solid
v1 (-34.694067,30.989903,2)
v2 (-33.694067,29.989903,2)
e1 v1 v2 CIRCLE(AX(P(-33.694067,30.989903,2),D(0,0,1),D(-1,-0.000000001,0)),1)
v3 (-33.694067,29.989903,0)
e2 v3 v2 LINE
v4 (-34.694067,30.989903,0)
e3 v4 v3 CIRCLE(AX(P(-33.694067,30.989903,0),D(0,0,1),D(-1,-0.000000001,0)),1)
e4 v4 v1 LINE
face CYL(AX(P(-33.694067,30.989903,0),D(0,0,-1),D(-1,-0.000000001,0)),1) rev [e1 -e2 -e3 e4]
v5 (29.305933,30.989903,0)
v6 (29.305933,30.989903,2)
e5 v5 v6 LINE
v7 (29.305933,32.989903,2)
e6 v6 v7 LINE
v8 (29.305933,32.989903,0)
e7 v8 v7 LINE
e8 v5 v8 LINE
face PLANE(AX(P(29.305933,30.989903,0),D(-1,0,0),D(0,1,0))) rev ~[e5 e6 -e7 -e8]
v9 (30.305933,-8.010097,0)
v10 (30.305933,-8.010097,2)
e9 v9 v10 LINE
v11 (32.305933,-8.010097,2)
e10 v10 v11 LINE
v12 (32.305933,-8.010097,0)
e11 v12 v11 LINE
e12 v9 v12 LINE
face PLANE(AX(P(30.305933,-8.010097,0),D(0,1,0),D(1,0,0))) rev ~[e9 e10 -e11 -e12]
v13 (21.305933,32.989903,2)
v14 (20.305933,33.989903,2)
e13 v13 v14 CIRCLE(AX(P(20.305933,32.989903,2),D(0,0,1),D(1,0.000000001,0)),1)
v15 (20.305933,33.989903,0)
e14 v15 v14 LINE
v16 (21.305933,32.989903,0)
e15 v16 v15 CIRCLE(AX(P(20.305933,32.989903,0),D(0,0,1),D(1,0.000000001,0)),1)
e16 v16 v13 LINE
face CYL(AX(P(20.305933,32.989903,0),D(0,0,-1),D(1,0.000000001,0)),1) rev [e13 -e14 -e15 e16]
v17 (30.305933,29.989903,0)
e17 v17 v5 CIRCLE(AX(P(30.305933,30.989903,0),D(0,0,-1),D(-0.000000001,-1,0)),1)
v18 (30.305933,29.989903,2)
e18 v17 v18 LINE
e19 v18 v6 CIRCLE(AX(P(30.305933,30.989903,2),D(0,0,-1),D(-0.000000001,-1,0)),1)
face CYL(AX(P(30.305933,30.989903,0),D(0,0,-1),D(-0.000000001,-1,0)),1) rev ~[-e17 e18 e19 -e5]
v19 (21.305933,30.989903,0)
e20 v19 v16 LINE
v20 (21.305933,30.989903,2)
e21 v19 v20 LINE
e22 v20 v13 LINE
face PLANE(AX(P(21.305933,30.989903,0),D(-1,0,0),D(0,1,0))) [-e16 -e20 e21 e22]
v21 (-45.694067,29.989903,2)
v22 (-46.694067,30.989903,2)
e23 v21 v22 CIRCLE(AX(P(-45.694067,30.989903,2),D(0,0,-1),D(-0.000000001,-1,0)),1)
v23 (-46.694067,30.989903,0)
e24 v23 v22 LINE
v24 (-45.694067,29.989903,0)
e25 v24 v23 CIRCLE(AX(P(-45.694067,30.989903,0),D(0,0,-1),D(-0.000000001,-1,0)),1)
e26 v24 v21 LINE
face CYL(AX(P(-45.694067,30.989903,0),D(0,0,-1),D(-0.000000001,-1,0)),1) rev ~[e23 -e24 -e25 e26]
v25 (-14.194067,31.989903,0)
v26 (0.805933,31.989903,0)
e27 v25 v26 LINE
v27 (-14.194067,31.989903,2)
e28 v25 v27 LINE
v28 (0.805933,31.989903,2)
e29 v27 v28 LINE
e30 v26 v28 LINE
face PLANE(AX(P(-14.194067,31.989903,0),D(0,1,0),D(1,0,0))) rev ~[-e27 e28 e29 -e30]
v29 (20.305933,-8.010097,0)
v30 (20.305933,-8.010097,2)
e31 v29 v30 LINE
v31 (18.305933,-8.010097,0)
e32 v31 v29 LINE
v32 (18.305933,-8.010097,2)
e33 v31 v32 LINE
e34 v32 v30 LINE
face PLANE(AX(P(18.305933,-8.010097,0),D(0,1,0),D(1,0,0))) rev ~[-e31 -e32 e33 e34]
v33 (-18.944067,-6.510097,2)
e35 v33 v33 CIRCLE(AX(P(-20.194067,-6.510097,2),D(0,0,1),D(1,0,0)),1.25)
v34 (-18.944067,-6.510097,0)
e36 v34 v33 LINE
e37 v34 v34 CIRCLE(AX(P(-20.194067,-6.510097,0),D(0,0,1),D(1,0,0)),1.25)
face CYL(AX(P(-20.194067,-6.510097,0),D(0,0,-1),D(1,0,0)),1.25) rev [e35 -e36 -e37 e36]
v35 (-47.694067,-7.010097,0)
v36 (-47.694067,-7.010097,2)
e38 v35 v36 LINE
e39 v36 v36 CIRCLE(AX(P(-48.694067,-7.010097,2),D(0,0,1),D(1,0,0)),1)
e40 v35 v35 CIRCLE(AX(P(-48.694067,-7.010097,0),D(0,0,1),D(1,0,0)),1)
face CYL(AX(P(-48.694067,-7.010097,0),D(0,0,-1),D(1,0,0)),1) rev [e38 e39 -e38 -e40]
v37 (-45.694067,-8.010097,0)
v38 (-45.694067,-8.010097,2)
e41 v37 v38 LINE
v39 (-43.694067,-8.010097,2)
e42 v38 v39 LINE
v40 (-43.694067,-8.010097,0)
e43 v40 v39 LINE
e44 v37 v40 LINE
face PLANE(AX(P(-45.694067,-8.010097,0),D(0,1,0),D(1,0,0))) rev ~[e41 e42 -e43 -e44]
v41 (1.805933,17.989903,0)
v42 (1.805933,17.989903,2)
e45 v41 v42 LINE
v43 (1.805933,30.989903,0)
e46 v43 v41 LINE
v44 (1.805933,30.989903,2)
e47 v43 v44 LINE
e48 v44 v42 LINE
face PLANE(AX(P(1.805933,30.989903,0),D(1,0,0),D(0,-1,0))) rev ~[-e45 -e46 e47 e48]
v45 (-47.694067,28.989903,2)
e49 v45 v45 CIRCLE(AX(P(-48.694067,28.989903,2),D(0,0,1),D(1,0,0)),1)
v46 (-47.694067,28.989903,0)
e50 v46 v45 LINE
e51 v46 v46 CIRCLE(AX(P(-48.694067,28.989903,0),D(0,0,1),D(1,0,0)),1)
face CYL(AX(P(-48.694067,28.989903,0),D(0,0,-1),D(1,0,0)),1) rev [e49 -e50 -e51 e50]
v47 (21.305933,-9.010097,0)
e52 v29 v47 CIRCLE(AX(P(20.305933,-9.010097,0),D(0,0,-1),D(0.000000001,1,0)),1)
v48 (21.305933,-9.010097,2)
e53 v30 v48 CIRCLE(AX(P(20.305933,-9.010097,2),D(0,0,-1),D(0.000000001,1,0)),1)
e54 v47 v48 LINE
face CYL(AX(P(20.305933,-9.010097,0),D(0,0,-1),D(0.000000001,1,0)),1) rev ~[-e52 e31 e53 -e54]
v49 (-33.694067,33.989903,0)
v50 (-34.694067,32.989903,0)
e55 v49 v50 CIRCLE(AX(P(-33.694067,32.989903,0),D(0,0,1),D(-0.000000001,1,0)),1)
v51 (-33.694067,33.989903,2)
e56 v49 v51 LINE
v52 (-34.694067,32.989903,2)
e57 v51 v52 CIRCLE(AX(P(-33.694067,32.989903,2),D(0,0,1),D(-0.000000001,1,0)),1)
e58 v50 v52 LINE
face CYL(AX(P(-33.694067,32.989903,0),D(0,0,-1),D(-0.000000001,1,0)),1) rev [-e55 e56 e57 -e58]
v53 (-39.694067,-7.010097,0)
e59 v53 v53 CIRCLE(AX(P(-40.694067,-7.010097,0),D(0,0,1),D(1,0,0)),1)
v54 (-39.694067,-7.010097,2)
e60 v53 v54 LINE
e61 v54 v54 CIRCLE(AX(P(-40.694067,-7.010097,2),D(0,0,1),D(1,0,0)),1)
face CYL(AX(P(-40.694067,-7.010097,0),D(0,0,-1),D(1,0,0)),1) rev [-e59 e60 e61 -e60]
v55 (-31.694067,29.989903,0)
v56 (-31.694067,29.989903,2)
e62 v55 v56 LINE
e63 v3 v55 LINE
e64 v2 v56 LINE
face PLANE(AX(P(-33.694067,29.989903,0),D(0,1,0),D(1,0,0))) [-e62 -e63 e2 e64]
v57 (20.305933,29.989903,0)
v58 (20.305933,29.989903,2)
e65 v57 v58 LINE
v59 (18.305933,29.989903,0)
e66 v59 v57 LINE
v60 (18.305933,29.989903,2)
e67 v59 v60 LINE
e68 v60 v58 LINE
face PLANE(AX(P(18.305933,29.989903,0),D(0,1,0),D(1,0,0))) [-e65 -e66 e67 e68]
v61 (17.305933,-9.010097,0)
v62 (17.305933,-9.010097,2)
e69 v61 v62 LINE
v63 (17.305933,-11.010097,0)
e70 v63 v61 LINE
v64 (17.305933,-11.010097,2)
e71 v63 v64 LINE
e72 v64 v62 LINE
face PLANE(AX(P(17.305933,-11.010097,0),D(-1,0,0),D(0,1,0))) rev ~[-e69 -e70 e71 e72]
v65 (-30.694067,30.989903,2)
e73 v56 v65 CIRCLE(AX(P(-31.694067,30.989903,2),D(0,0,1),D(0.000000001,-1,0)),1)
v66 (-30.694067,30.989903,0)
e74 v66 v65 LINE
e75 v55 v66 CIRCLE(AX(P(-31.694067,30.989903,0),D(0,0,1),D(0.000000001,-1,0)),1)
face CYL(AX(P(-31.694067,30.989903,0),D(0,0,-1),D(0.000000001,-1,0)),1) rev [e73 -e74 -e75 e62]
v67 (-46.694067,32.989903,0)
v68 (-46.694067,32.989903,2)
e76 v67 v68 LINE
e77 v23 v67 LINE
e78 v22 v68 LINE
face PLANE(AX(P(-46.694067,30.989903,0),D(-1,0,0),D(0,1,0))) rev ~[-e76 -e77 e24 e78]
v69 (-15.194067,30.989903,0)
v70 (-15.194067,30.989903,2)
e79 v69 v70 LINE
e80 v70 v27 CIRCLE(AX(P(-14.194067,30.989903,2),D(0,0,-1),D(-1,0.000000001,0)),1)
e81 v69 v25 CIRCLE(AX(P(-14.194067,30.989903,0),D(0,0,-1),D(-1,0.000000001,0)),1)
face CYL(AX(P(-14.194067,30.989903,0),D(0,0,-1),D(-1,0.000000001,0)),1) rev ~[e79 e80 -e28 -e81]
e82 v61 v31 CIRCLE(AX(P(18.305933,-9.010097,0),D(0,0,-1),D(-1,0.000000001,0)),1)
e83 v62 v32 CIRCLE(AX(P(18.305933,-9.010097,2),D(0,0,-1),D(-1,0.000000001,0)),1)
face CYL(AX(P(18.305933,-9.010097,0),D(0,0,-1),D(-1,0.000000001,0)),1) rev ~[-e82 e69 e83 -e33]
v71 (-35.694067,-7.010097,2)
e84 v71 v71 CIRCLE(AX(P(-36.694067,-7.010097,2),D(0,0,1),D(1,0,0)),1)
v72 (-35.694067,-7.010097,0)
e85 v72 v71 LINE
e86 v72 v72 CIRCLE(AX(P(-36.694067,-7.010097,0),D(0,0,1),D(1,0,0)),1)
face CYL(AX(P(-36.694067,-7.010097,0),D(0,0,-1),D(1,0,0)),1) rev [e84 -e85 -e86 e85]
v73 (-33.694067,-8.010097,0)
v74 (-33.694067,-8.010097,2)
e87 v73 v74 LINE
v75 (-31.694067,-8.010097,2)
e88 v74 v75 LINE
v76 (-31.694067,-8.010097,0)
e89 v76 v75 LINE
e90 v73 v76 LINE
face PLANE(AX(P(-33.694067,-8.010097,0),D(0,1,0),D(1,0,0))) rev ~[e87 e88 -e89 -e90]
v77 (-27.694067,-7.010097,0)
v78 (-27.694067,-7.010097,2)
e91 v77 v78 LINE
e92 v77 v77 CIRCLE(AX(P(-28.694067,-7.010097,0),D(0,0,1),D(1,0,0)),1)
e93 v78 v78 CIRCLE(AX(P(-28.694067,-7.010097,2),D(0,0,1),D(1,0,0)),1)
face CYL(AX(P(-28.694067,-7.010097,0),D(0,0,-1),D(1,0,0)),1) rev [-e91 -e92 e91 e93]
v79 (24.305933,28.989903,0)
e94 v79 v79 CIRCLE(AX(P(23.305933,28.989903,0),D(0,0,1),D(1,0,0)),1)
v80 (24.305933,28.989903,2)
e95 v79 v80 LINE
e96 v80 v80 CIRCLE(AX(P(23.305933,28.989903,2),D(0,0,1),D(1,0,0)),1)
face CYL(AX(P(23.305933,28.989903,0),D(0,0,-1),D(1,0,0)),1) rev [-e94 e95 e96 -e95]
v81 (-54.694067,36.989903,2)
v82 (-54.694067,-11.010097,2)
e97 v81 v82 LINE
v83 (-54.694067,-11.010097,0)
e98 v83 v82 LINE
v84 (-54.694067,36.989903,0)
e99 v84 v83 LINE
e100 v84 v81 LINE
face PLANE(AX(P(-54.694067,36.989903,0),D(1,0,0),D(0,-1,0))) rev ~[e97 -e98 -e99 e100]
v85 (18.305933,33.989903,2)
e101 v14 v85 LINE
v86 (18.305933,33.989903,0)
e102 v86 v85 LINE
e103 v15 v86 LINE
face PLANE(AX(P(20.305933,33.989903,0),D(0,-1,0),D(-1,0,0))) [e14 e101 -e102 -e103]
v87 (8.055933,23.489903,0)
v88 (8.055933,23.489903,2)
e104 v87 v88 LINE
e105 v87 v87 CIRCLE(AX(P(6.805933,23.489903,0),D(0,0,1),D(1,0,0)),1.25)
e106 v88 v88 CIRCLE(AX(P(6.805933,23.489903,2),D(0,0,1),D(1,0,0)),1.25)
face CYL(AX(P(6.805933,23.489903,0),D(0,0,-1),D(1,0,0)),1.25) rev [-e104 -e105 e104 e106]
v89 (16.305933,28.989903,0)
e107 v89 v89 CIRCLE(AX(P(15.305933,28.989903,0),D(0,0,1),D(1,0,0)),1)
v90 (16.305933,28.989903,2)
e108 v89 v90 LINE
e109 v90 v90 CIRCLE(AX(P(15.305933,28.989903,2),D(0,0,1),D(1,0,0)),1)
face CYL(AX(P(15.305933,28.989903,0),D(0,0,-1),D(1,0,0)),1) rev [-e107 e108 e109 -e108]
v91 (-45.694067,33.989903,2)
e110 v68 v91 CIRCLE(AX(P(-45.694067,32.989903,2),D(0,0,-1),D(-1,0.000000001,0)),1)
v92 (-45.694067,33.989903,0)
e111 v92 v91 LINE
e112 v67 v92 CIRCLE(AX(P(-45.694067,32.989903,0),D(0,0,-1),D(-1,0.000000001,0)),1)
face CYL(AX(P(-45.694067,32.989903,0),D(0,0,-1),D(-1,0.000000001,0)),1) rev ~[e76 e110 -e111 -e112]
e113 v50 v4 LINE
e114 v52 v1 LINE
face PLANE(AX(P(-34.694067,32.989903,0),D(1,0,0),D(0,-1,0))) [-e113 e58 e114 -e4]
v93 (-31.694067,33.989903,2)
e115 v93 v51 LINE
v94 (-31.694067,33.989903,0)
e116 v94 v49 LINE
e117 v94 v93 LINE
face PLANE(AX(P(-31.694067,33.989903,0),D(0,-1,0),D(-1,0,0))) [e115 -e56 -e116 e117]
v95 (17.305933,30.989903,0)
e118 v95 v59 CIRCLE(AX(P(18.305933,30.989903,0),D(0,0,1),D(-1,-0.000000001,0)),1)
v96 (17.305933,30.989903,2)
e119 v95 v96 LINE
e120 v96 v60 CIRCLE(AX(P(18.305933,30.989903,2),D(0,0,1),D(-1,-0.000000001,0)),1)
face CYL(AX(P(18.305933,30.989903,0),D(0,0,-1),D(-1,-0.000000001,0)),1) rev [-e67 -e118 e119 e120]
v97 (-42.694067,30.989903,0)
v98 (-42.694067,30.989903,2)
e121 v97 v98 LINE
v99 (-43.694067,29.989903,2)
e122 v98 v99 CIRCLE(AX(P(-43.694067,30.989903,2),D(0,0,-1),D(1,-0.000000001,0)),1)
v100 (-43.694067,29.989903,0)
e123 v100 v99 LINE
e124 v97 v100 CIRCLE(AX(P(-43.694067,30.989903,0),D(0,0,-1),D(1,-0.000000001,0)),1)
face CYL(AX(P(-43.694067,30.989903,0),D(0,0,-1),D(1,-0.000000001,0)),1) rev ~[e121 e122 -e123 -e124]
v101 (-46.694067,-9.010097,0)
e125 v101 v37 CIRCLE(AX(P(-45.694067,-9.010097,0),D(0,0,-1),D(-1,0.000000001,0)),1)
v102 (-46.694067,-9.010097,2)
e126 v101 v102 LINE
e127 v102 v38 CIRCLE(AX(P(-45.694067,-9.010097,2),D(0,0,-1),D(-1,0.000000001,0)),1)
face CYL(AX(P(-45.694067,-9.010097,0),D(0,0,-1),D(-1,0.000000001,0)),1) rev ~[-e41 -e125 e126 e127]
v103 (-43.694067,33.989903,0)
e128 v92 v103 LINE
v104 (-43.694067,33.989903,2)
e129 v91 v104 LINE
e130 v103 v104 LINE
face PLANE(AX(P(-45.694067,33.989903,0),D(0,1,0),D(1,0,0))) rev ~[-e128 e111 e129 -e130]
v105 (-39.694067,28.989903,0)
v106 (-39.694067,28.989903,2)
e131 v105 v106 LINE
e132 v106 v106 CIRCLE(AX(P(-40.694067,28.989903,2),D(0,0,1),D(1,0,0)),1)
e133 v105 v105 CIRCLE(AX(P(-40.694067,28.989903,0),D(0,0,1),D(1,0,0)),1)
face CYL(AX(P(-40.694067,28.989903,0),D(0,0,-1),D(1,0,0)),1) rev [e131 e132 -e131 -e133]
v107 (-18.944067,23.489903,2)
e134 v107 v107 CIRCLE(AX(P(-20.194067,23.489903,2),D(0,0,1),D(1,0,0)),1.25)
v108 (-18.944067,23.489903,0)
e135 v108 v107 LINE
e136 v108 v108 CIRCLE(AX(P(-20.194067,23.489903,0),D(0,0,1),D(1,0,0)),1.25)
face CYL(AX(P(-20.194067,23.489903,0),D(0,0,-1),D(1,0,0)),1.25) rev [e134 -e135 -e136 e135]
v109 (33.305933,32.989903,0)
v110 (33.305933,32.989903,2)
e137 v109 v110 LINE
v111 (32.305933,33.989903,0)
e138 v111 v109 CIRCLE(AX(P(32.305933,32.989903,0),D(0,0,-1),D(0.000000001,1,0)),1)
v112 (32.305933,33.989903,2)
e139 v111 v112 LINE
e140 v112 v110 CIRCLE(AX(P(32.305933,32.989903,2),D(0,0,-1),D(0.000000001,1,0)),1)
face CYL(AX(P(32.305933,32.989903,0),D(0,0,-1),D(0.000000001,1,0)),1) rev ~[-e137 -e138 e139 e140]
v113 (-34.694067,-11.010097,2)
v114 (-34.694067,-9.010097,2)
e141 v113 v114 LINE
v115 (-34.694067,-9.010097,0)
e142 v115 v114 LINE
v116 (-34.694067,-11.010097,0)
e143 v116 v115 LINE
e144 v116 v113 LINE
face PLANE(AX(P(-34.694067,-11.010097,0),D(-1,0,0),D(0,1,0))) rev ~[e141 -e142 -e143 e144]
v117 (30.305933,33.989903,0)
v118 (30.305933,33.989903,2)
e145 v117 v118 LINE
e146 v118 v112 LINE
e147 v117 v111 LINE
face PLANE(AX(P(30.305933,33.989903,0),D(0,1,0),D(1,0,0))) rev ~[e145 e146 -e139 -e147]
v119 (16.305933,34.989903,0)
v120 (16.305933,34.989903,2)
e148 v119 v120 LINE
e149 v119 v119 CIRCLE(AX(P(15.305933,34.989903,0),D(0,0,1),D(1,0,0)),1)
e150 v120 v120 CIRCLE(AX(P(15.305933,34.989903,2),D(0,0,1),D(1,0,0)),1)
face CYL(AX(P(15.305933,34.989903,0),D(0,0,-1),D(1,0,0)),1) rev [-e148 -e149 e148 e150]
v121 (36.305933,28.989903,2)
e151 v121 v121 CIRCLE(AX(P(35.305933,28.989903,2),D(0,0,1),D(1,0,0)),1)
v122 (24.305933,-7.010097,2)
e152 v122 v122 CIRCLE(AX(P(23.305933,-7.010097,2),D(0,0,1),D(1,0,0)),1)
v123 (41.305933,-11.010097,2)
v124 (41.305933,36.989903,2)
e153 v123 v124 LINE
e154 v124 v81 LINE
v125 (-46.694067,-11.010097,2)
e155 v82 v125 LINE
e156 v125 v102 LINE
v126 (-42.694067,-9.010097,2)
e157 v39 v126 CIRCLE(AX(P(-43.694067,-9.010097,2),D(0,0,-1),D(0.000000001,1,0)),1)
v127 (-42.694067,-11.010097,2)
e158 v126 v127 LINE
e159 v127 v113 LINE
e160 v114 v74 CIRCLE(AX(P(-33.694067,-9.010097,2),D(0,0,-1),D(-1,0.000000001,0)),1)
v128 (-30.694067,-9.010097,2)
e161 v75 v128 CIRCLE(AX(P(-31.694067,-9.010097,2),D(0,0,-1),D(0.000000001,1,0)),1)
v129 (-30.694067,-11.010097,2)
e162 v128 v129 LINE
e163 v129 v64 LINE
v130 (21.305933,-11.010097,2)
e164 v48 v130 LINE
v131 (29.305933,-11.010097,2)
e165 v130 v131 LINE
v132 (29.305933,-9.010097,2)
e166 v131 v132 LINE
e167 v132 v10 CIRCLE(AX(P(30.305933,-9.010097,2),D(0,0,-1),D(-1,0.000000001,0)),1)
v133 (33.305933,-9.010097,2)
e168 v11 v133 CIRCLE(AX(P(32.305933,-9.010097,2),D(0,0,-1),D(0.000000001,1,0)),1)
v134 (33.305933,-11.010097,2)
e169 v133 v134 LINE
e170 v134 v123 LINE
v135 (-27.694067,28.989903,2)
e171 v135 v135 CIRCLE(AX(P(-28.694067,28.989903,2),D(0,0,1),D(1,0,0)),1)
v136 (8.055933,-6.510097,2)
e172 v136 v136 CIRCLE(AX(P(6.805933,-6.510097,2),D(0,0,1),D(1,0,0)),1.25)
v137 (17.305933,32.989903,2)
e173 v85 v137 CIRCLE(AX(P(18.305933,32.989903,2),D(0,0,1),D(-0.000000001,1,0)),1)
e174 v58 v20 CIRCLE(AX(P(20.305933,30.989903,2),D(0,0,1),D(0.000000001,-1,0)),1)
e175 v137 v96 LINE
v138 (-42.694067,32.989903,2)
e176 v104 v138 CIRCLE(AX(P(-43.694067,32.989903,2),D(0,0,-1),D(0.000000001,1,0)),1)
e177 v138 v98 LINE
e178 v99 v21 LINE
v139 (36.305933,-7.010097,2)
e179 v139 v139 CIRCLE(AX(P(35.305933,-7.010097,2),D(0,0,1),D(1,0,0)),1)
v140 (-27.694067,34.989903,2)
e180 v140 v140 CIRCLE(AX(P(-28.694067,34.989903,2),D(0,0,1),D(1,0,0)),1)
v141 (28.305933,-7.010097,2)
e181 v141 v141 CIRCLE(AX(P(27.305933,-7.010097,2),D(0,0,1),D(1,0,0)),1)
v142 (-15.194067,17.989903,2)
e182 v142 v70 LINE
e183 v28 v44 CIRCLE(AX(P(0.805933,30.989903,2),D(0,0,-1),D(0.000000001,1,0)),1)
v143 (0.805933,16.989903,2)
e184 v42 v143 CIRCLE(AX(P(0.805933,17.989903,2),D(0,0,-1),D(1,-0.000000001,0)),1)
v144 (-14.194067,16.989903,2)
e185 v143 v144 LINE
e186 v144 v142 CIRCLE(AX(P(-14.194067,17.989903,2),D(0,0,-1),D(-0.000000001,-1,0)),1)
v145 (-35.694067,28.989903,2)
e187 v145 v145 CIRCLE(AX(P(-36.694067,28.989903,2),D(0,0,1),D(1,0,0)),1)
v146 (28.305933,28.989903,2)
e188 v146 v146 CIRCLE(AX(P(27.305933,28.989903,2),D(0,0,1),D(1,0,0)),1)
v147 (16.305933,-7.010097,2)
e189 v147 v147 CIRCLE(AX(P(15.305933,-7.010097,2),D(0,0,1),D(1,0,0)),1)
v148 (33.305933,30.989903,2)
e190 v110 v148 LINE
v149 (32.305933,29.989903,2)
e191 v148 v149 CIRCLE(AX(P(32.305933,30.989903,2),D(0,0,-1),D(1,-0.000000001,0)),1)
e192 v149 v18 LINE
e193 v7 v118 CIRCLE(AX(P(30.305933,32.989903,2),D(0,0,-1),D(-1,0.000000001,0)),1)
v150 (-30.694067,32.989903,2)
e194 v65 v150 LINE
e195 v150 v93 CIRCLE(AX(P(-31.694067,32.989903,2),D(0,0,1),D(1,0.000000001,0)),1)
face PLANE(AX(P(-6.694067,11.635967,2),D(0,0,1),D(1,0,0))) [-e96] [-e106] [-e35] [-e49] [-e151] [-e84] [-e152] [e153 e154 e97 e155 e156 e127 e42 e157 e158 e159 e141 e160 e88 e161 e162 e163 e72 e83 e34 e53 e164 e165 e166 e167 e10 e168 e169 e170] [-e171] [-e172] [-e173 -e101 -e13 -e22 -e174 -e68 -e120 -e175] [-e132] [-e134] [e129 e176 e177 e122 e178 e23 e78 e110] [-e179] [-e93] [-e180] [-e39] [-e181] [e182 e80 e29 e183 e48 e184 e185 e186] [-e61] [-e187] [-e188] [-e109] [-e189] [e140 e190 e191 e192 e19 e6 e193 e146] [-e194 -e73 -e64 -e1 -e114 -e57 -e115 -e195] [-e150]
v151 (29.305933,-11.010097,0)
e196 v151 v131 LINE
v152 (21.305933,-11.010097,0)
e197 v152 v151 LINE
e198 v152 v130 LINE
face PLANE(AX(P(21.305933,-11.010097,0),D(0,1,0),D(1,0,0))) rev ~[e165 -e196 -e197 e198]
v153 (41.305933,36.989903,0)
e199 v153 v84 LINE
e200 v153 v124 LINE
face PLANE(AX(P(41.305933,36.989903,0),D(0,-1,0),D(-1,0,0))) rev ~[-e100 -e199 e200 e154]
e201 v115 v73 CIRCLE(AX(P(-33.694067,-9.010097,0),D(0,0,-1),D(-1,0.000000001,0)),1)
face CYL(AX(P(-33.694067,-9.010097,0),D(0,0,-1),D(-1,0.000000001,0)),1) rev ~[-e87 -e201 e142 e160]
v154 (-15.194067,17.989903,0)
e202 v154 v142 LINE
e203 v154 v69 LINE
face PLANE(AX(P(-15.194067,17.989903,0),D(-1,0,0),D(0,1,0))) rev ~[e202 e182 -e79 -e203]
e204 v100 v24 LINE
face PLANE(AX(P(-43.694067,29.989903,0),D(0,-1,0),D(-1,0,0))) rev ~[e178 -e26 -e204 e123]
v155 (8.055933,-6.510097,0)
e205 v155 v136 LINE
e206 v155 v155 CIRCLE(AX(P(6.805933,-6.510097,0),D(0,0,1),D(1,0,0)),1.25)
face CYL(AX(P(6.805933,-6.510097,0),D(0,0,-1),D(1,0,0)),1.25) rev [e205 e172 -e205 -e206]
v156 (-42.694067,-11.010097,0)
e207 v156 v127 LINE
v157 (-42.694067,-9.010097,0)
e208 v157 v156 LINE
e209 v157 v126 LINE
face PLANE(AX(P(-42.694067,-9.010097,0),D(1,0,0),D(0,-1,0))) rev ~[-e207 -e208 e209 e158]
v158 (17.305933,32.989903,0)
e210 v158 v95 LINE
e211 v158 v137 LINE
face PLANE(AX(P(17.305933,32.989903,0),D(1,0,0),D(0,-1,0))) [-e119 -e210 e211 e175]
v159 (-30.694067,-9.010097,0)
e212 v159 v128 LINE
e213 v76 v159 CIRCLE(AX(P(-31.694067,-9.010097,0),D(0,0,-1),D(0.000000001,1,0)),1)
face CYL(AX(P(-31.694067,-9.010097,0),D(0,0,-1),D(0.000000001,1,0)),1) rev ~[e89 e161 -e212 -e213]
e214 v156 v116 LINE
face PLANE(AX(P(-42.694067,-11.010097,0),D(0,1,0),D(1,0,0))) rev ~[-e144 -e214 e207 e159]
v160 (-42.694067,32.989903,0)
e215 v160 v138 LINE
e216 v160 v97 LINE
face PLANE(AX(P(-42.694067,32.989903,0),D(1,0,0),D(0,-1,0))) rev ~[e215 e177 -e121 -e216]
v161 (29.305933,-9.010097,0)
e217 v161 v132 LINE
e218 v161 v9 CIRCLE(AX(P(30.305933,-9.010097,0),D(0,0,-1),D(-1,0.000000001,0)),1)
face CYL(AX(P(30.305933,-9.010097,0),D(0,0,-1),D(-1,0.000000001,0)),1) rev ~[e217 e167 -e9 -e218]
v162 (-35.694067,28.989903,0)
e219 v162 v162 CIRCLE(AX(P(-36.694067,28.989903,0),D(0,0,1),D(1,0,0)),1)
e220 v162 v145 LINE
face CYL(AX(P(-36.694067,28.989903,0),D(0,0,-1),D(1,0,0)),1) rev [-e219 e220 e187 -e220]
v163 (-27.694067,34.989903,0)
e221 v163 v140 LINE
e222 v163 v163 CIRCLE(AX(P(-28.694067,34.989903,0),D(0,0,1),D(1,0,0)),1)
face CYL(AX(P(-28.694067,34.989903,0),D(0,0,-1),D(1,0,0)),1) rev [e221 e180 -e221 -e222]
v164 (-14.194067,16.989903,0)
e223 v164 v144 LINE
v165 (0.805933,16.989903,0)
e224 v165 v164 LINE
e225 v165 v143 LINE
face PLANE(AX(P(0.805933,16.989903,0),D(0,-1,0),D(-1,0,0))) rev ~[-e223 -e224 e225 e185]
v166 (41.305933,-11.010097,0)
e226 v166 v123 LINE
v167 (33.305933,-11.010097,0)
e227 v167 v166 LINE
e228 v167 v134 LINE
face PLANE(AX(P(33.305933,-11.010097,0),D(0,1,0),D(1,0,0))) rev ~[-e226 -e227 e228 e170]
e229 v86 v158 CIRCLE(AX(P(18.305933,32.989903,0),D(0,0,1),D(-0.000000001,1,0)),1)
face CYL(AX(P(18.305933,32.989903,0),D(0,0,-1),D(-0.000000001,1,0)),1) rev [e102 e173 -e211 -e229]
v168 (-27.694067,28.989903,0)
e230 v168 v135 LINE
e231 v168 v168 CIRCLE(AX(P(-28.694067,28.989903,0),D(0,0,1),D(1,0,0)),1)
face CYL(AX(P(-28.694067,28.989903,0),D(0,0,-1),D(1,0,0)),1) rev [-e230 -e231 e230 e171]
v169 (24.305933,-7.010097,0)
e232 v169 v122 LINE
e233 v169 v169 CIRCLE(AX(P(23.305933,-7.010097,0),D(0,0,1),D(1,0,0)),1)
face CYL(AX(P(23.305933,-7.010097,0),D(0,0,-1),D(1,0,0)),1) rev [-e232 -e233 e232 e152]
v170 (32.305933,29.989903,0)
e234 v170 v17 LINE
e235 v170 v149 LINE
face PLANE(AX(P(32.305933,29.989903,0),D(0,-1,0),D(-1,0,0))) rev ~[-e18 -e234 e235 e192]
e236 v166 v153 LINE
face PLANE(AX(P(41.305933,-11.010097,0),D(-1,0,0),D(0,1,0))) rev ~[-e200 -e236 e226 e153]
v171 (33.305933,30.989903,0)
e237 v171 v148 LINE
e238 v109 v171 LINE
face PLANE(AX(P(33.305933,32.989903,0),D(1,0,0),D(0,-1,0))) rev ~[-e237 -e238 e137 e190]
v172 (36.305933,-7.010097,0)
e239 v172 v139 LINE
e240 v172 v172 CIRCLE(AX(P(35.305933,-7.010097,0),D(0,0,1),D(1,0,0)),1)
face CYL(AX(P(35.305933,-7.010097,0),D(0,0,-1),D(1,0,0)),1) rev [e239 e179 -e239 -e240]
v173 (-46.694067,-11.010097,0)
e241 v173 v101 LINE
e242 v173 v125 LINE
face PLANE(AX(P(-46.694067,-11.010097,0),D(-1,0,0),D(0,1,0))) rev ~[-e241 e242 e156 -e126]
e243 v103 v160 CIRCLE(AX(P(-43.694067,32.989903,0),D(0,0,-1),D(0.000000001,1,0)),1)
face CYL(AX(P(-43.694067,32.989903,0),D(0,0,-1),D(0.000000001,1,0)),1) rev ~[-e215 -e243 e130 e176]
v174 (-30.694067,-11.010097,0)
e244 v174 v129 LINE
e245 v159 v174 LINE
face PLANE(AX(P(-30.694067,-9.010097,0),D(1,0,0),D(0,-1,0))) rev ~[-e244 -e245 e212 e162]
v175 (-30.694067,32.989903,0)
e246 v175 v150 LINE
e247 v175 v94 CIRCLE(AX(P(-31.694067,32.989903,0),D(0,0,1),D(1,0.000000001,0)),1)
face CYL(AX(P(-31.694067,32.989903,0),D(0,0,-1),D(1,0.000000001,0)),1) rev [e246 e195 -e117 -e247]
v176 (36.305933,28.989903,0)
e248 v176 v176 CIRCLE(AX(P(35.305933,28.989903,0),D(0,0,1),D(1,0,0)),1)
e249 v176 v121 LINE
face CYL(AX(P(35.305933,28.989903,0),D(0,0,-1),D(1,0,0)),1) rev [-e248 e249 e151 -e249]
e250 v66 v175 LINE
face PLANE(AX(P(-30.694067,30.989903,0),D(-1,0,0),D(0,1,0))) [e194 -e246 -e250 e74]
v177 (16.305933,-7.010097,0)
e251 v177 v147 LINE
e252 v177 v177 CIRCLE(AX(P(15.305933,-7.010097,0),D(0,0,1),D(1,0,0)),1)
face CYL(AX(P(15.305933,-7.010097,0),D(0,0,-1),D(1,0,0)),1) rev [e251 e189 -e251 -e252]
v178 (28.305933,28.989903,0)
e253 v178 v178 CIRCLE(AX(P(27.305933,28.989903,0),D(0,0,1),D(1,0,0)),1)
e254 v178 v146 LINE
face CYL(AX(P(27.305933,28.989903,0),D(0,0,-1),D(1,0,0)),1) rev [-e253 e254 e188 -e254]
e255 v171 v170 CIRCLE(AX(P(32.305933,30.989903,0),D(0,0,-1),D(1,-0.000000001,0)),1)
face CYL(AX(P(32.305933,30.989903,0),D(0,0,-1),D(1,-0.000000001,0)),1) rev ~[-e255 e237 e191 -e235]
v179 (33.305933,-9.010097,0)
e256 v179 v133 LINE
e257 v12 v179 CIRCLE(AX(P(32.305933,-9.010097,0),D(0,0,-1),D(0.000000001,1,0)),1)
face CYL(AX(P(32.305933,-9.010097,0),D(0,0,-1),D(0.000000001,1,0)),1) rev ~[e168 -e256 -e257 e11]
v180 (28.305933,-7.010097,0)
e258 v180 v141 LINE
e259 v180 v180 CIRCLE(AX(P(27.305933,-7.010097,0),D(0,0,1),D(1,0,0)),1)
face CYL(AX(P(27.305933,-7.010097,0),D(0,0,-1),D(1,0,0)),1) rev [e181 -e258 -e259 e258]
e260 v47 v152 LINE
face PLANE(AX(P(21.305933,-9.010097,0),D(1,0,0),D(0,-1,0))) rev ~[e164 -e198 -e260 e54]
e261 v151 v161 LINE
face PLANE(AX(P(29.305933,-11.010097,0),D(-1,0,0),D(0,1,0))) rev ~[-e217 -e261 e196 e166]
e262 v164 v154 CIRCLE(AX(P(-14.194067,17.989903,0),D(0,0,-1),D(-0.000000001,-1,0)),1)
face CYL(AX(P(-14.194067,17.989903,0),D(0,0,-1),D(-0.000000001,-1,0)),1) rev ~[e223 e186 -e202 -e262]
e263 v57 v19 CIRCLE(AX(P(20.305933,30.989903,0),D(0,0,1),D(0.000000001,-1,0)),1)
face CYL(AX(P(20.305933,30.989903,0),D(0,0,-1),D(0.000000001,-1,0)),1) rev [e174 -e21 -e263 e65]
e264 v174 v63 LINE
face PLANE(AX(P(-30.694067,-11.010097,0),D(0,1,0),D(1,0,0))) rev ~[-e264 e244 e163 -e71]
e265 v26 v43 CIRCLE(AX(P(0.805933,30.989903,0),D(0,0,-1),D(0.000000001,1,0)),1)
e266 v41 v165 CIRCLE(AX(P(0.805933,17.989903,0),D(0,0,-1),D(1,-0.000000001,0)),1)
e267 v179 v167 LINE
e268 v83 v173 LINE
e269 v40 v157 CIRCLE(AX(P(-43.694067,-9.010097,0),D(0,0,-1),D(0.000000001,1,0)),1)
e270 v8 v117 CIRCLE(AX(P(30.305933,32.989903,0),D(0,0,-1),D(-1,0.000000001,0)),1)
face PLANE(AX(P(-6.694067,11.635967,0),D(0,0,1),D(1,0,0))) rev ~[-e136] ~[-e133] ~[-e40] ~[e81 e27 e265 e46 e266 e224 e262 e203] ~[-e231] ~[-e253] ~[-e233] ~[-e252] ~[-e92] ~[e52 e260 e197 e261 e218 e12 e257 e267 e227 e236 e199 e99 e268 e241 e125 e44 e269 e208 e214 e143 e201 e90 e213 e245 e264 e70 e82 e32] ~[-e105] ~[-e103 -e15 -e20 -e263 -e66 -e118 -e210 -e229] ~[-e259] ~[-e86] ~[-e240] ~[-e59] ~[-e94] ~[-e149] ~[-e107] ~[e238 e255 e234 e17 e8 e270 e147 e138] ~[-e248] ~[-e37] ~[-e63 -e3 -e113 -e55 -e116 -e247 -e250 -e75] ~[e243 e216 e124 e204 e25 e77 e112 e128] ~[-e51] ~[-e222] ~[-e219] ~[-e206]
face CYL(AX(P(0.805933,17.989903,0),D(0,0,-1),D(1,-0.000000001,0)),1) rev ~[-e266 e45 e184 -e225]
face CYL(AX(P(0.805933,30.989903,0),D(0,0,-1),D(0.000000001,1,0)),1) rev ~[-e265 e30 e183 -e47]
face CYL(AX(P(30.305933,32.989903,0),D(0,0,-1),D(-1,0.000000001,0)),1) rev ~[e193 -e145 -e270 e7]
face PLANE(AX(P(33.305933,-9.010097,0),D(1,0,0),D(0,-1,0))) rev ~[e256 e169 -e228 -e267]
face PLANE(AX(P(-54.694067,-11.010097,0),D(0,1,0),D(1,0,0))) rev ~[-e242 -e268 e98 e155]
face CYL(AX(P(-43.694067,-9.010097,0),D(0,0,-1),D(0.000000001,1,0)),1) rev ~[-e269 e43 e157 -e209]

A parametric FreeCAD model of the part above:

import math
import FreeCAD as App
import Part
import Sketcher
from FreeCAD import Vector

doc = App.newDocument("Part")
params = doc.addObject("Spreadsheet::Sheet", "Params")
for row, (alias, value) in enumerate([
    ("sketch1_diameter", "2 mm"),
    ("sketch1_diameter2", "2.5 mm"),
    ("sketch1_width", "8 mm"),
    ("sketch1_width2", "2 mm"),
    ("sketch1_width3", "48 mm"),
    ("pad1_length", "2 mm"),
], start=1):
    params.set(f"A{row}", alias)
    params.set(f"B{row}", "=" + value)
    params.setAlias(f"B{row}", alias)

body = doc.addObject("PartDesign::Body", "Body")

# Sketch on XY plane
sketch1 = body.newObject("Sketcher::SketchObject", "Sketch")
sketch1.AttachmentSupport = (doc.getObject("XY_Plane"), [""])
sketch1.MapMode = "FlatFace"
sketch1.addGeometry([
    Part.LineSegment(Vector(-54.7, 37, 0), Vector(-54.7, -11, 0)),  # 0
    Part.LineSegment(Vector(-54.7, -11, 0), Vector(-46.7, -11, 0)),  # 1
    Part.LineSegment(Vector(-46.7, -11, 0), Vector(-46.7, -9, 0)),  # 2
    Part.ArcOfCircle(Part.Circle(Vector(-45.7, -9, 0), Vector(0, 0, 1), 1), math.radians(90), math.radians(180)),  # 3
    Part.LineSegment(Vector(-45.7, -8, 0), Vector(-43.7, -8, 0)),  # 4
    Part.ArcOfCircle(Part.Circle(Vector(-43.7, -9, 0), Vector(0, 0, 1), 1), math.radians(0), math.radians(90)),  # 5
    Part.LineSegment(Vector(-42.7, -9, 0), Vector(-42.7, -11, 0)),  # 6
    Part.LineSegment(Vector(-42.7, -11, 0), Vector(-34.7, -11, 0)),  # 7
    Part.LineSegment(Vector(-34.7, -11, 0), Vector(-34.7, -9, 0)),  # 8
    Part.ArcOfCircle(Part.Circle(Vector(-33.7, -9, 0), Vector(0, 0, 1), 1), math.radians(90), math.radians(180)),  # 9
    Part.LineSegment(Vector(-33.7, -8, 0), Vector(-31.7, -8, 0)),  # 10
    Part.ArcOfCircle(Part.Circle(Vector(-31.7, -9, 0), Vector(0, 0, 1), 1), math.radians(0), math.radians(90)),  # 11
    Part.LineSegment(Vector(-30.7, -9, 0), Vector(-30.7, -11, 0)),  # 12
    Part.LineSegment(Vector(-30.7, -11, 0), Vector(17.3, -11, 0)),  # 13
    Part.LineSegment(Vector(17.3, -11, 0), Vector(17.3, -9, 0)),  # 14
    Part.ArcOfCircle(Part.Circle(Vector(18.3, -9, 0), Vector(0, 0, 1), 1), math.radians(90), math.radians(180)),  # 15
    Part.LineSegment(Vector(18.3, -8, 0), Vector(20.3, -8, 0)),  # 16
    Part.ArcOfCircle(Part.Circle(Vector(20.3, -9, 0), Vector(0, 0, 1), 1), math.radians(0), math.radians(90)),  # 17
    Part.LineSegment(Vector(21.3, -9, 0), Vector(21.3, -11, 0)),  # 18
    Part.LineSegment(Vector(21.3, -11, 0), Vector(29.3, -11, 0)),  # 19
    Part.LineSegment(Vector(29.3, -11, 0), Vector(29.3, -9, 0)),  # 20
    Part.ArcOfCircle(Part.Circle(Vector(30.3, -9, 0), Vector(0, 0, 1), 1), math.radians(90), math.radians(180)),  # 21
    Part.LineSegment(Vector(30.3, -8, 0), Vector(32.3, -8, 0)),  # 22
    Part.ArcOfCircle(Part.Circle(Vector(32.3, -9, 0), Vector(0, 0, 1), 1), math.radians(0), math.radians(90)),  # 23
    Part.LineSegment(Vector(33.3, -9, 0), Vector(33.3, -11, 0)),  # 24
    Part.LineSegment(Vector(33.3, -11, 0), Vector(41.3, -11, 0)),  # 25
    Part.LineSegment(Vector(41.3, -11, 0), Vector(41.3, 37, 0)),  # 26
    Part.LineSegment(Vector(41.3, 37, 0), Vector(-54.7, 37, 0)),  # 27
    Part.Circle(Vector(-48.7, -7, 0), Vector(0, 0, 1), 1),  # 28
    Part.Circle(Vector(-40.7, -7, 0), Vector(0, 0, 1), 1),  # 29
    Part.Circle(Vector(-36.7, -7, 0), Vector(0, 0, 1), 1),  # 30
    Part.Circle(Vector(-28.7, -7, 0), Vector(0, 0, 1), 1),  # 31
    Part.Circle(Vector(-20.2, -6.5, 0), Vector(0, 0, 1), 1.2),  # 32
    Part.Circle(Vector(6.8, -6.5, 0), Vector(0, 0, 1), 1.2),  # 33
    Part.Circle(Vector(15.3, -7, 0), Vector(0, 0, 1), 1),  # 34
    Part.Circle(Vector(23.3, -7, 0), Vector(0, 0, 1), 1),  # 35
    Part.Circle(Vector(27.3, -7, 0), Vector(0, 0, 1), 1),  # 36
    Part.Circle(Vector(35.3, -7, 0), Vector(0, 0, 1), 1),  # 37
    Part.Circle(Vector(-20.2, 23.5, 0), Vector(0, 0, 1), 1.2),  # 38
    Part.Circle(Vector(-48.7, 29, 0), Vector(0, 0, 1), 1),  # 39
    Part.Circle(Vector(-40.7, 29, 0), Vector(0, 0, 1), 1),  # 40
    Part.Circle(Vector(-36.7, 29, 0), Vector(0, 0, 1), 1),  # 41
    Part.Circle(Vector(-28.7, 29, 0), Vector(0, 0, 1), 1),  # 42
    Part.ArcOfCircle(Part.Circle(Vector(-45.7, 31, 0), Vector(0, 0, 1), 1), math.radians(-180), math.radians(-90)),  # 43
    Part.LineSegment(Vector(-46.7, 31, 0), Vector(-46.7, 33, 0)),  # 44
    Part.ArcOfCircle(Part.Circle(Vector(-45.7, 33, 0), Vector(0, 0, 1), 1), math.radians(90), math.radians(180)),  # 45
    Part.LineSegment(Vector(-45.7, 34, 0), Vector(-43.7, 34, 0)),  # 46
    Part.ArcOfCircle(Part.Circle(Vector(-43.7, 33, 0), Vector(0, 0, 1), 1), math.radians(0), math.radians(90)),  # 47
    Part.LineSegment(Vector(-42.7, 33, 0), Vector(-42.7, 31, 0)),  # 48
    Part.ArcOfCircle(Part.Circle(Vector(-43.7, 31, 0), Vector(0, 0, 1), 1), math.radians(-90), math.radians(0)),  # 49
    Part.LineSegment(Vector(-43.7, 30, 0), Vector(-45.7, 30, 0)),  # 50
    Part.LineSegment(Vector(-30.7, 33, 0), Vector(-30.7, 31, 0)),  # 51
    Part.ArcOfCircle(Part.Circle(Vector(-31.7, 31, 0), Vector(0, 0, 1), 1), math.radians(-90), math.radians(0)),  # 52
    Part.LineSegment(Vector(-31.7, 30, 0), Vector(-33.7, 30, 0)),  # 53
    Part.ArcOfCircle(Part.Circle(Vector(-33.7, 31, 0), Vector(0, 0, 1), 1), math.radians(-180), math.radians(-90)),  # 54
    Part.LineSegment(Vector(-34.7, 31, 0), Vector(-34.7, 33, 0)),  # 55
    Part.ArcOfCircle(Part.Circle(Vector(-33.7, 33, 0), Vector(0, 0, 1), 1), math.radians(90), math.radians(180)),  # 56
    Part.LineSegment(Vector(-33.7, 34, 0), Vector(-31.7, 34, 0)),  # 57
    Part.ArcOfCircle(Part.Circle(Vector(-31.7, 33, 0), Vector(0, 0, 1), 1), math.radians(0), math.radians(90)),  # 58
    Part.Circle(Vector(-28.7, 35, 0), Vector(0, 0, 1), 1),  # 59
    Part.ArcOfCircle(Part.Circle(Vector(-14.2, 31, 0), Vector(0, 0, 1), 1), math.radians(90), math.radians(180)),  # 60
    Part.LineSegment(Vector(-14.2, 32, 0), Vector(0.8, 32, 0)),  # 61
    Part.ArcOfCircle(Part.Circle(Vector(0.8, 31, 0), Vector(0, 0, 1), 1), math.radians(0), math.radians(90)),  # 62
    Part.LineSegment(Vector(1.8, 31, 0), Vector(1.8, 18, 0)),  # 63
    Part.ArcOfCircle(Part.Circle(Vector(0.8, 18, 0), Vector(0, 0, 1), 1), math.radians(-90), math.radians(0)),  # 64
    Part.LineSegment(Vector(0.8, 17, 0), Vector(-14.2, 17, 0)),  # 65
    Part.ArcOfCircle(Part.Circle(Vector(-14.2, 18, 0), Vector(0, 0, 1), 1), math.radians(-180), math.radians(-90)),  # 66
    Part.LineSegment(Vector(-15.2, 18, 0), Vector(-15.2, 31, 0)),  # 67
    Part.Circle(Vector(6.8, 23.5, 0), Vector(0, 0, 1), 1.2),  # 68
    Part.Circle(Vector(15.3, 29, 0), Vector(0, 0, 1), 1),  # 69
    Part.Circle(Vector(23.3, 29, 0), Vector(0, 0, 1), 1),  # 70
    Part.Circle(Vector(27.3, 29, 0), Vector(0, 0, 1), 1),  # 71
    Part.Circle(Vector(35.3, 29, 0), Vector(0, 0, 1), 1),  # 72
    Part.LineSegment(Vector(18.3, 34, 0), Vector(20.3, 34, 0)),  # 73
    Part.ArcOfCircle(Part.Circle(Vector(20.3, 33, 0), Vector(0, 0, 1), 1), math.radians(0), math.radians(90)),  # 74
    Part.LineSegment(Vector(21.3, 33, 0), Vector(21.3, 31, 0)),  # 75
    Part.ArcOfCircle(Part.Circle(Vector(20.3, 31, 0), Vector(0, 0, 1), 1), math.radians(-90), math.radians(0)),  # 76
    Part.LineSegment(Vector(20.3, 30, 0), Vector(18.3, 30, 0)),  # 77
    Part.ArcOfCircle(Part.Circle(Vector(18.3, 31, 0), Vector(0, 0, 1), 1), math.radians(-180), math.radians(-90)),  # 78
    Part.LineSegment(Vector(17.3, 31, 0), Vector(17.3, 33, 0)),  # 79
    Part.ArcOfCircle(Part.Circle(Vector(18.3, 33, 0), Vector(0, 0, 1), 1), math.radians(90), math.radians(180)),  # 80
    Part.Circle(Vector(15.3, 35, 0), Vector(0, 0, 1), 1),  # 81
    Part.ArcOfCircle(Part.Circle(Vector(32.3, 31, 0), Vector(0, 0, 1), 1), math.radians(-90), math.radians(0)),  # 82
    Part.LineSegment(Vector(32.3, 30, 0), Vector(30.3, 30, 0)),  # 83
    Part.ArcOfCircle(Part.Circle(Vector(30.3, 31, 0), Vector(0, 0, 1), 1), math.radians(-180), math.radians(-90)),  # 84
    Part.LineSegment(Vector(29.3, 31, 0), Vector(29.3, 33, 0)),  # 85
    Part.ArcOfCircle(Part.Circle(Vector(30.3, 33, 0), Vector(0, 0, 1), 1), math.radians(90), math.radians(180)),  # 86
    Part.LineSegment(Vector(30.3, 34, 0), Vector(32.3, 34, 0)),  # 87
    Part.ArcOfCircle(Part.Circle(Vector(32.3, 33, 0), Vector(0, 0, 1), 1), math.radians(0), math.radians(90)),  # 88
    Part.LineSegment(Vector(33.3, 33, 0), Vector(33.3, 31, 0)),  # 89
], False)
sketch1.addConstraint([
    Sketcher.Constraint("Coincident", 0, 2, 1, 1),
    Sketcher.Constraint("Coincident", 1, 2, 2, 1),
    Sketcher.Constraint("Tangent", 2, 2, 3, 2),
    Sketcher.Constraint("Tangent", 3, 1, 4, 1),
    Sketcher.Constraint("Tangent", 4, 2, 5, 2),
    Sketcher.Constraint("Tangent", 5, 1, 6, 1),
    Sketcher.Constraint("Coincident", 6, 2, 7, 1),
    Sketcher.Constraint("Coincident", 7, 2, 8, 1),
    Sketcher.Constraint("Tangent", 8, 2, 9, 2),
    Sketcher.Constraint("Tangent", 9, 1, 10, 1),
    Sketcher.Constraint("Tangent", 10, 2, 11, 2),
    Sketcher.Constraint("Tangent", 11, 1, 12, 1),
    Sketcher.Constraint("Coincident", 12, 2, 13, 1),
    Sketcher.Constraint("Coincident", 13, 2, 14, 1),
    Sketcher.Constraint("Tangent", 14, 2, 15, 2),
    Sketcher.Constraint("Tangent", 15, 1, 16, 1),
    Sketcher.Constraint("Tangent", 16, 2, 17, 2),
    Sketcher.Constraint("Tangent", 17, 1, 18, 1),
    Sketcher.Constraint("Coincident", 18, 2, 19, 1),
    Sketcher.Constraint("Coincident", 19, 2, 20, 1),
    Sketcher.Constraint("Tangent", 20, 2, 21, 2),
    Sketcher.Constraint("Tangent", 21, 1, 22, 1),
    Sketcher.Constraint("Tangent", 22, 2, 23, 2),
    Sketcher.Constraint("Tangent", 23, 1, 24, 1),
    Sketcher.Constraint("Coincident", 24, 2, 25, 1),
    Sketcher.Constraint("Coincident", 25, 2, 26, 1),
    Sketcher.Constraint("Coincident", 26, 2, 27, 1),
    Sketcher.Constraint("Coincident", 27, 2, 0, 1),
    Sketcher.Constraint("Tangent", 43, 1, 44, 1),
    Sketcher.Constraint("Tangent", 44, 2, 45, 2),
    Sketcher.Constraint("Tangent", 45, 1, 46, 1),
    Sketcher.Constraint("Tangent", 46, 2, 47, 2),
    Sketcher.Constraint("Tangent", 47, 1, 48, 1),
    Sketcher.Constraint("Tangent", 48, 2, 49, 2),
    Sketcher.Constraint("Tangent", 49, 1, 50, 1),
    Sketcher.Constraint("Tangent", 50, 2, 43, 2),
    Sketcher.Constraint("Tangent", 51, 2, 52, 2),
    Sketcher.Constraint("Tangent", 52, 1, 53, 1),
    Sketcher.Constraint("Tangent", 53, 2, 54, 2),
    Sketcher.Constraint("Tangent", 54, 1, 55, 1),
    Sketcher.Constraint("Tangent", 55, 2, 56, 2),
    Sketcher.Constraint("Tangent", 56, 1, 57, 1),
    Sketcher.Constraint("Tangent", 57, 2, 58, 2),
    Sketcher.Constraint("Tangent", 58, 1, 51, 1),
    Sketcher.Constraint("Tangent", 60, 1, 61, 1),
    Sketcher.Constraint("Tangent", 61, 2, 62, 2),
    Sketcher.Constraint("Tangent", 62, 1, 63, 1),
    Sketcher.Constraint("Tangent", 63, 2, 64, 2),
    Sketcher.Constraint("Tangent", 64, 1, 65, 1),
    Sketcher.Constraint("Tangent", 65, 2, 66, 2),
    Sketcher.Constraint("Tangent", 66, 1, 67, 1),
    Sketcher.Constraint("Tangent", 67, 2, 60, 2),
    Sketcher.Constraint("Tangent", 73, 2, 74, 2),
    Sketcher.Constraint("Tangent", 74, 1, 75, 1),
    Sketcher.Constraint("Tangent", 75, 2, 76, 2),
    Sketcher.Constraint("Tangent", 76, 1, 77, 1),
    Sketcher.Constraint("Tangent", 77, 2, 78, 2),
    Sketcher.Constraint("Tangent", 78, 1, 79, 1),
    Sketcher.Constraint("Tangent", 79, 2, 80, 2),
    Sketcher.Constraint("Tangent", 80, 1, 73, 1),
    Sketcher.Constraint("Tangent", 82, 1, 83, 1),
    Sketcher.Constraint("Tangent", 83, 2, 84, 2),
    Sketcher.Constraint("Tangent", 84, 1, 85, 1),
    Sketcher.Constraint("Tangent", 85, 2, 86, 2),
    Sketcher.Constraint("Tangent", 86, 1, 87, 1),
    Sketcher.Constraint("Tangent", 87, 2, 88, 2),
    Sketcher.Constraint("Tangent", 88, 1, 89, 1),
    Sketcher.Constraint("Tangent", 89, 2, 82, 2),
    Sketcher.Constraint("Vertical", 0),
    Sketcher.Constraint("Horizontal", 1),
    Sketcher.Constraint("Vertical", 2),
    Sketcher.Constraint("Horizontal", 4),
    Sketcher.Constraint("Vertical", 6),
    Sketcher.Constraint("Horizontal", 7),
    Sketcher.Constraint("Vertical", 8),
    Sketcher.Constraint("Horizontal", 10),
    Sketcher.Constraint("Vertical", 12),
    Sketcher.Constraint("Horizontal", 13),
    Sketcher.Constraint("Vertical", 14),
    Sketcher.Constraint("Horizontal", 16),
    Sketcher.Constraint("Vertical", 18),
    Sketcher.Constraint("Horizontal", 19),
    Sketcher.Constraint("Vertical", 20),
    Sketcher.Constraint("Horizontal", 22),
    Sketcher.Constraint("Vertical", 24),
    Sketcher.Constraint("Horizontal", 25),
    Sketcher.Constraint("Vertical", 26),
    Sketcher.Constraint("Horizontal", 27),
    Sketcher.Constraint("Vertical", 44),
    Sketcher.Constraint("Horizontal", 46),
    Sketcher.Constraint("Vertical", 48),
    Sketcher.Constraint("Horizontal", 50),
    Sketcher.Constraint("Vertical", 51),
    Sketcher.Constraint("Horizontal", 53),
    Sketcher.Constraint("Vertical", 55),
    Sketcher.Constraint("Horizontal", 57),
    Sketcher.Constraint("Horizontal", 61),
    Sketcher.Constraint("Vertical", 63),
    Sketcher.Constraint("Horizontal", 65),
    Sketcher.Constraint("Vertical", 67),
    Sketcher.Constraint("Horizontal", 73),
    Sketcher.Constraint("Vertical", 75),
    Sketcher.Constraint("Horizontal", 77),
    Sketcher.Constraint("Vertical", 79),
    Sketcher.Constraint("Horizontal", 83),
    Sketcher.Constraint("Vertical", 85),
    Sketcher.Constraint("Horizontal", 87),
    Sketcher.Constraint("Vertical", 89),
    Sketcher.Constraint("Equal", 3, 5),
    Sketcher.Constraint("Equal", 5, 9),
    Sketcher.Constraint("Equal", 9, 11),
    Sketcher.Constraint("Equal", 11, 15),
    Sketcher.Constraint("Equal", 15, 17),
    Sketcher.Constraint("Equal", 17, 21),
    Sketcher.Constraint("Equal", 21, 23),
    Sketcher.Constraint("Equal", 23, 28),
    Sketcher.Constraint("Equal", 28, 29),
    Sketcher.Constraint("Equal", 29, 30),
    Sketcher.Constraint("Equal", 30, 31),
    Sketcher.Constraint("Equal", 32, 33),
    Sketcher.Constraint("Equal", 31, 34),
    Sketcher.Constraint("Equal", 34, 35),
    Sketcher.Constraint("Equal", 35, 36),
    Sketcher.Constraint("Equal", 36, 37),
    Sketcher.Constraint("Equal", 33, 38),
    Sketcher.Constraint("Equal", 37, 39),
    Sketcher.Constraint("Equal", 39, 40),
    Sketcher.Constraint("Equal", 40, 41),
    Sketcher.Constraint("Equal", 41, 42),
    Sketcher.Constraint("Equal", 42, 43),
    Sketcher.Constraint("Equal", 43, 45),
    Sketcher.Constraint("Equal", 45, 47),
    Sketcher.Constraint("Equal", 47, 49),
    Sketcher.Constraint("Equal", 49, 52),
    Sketcher.Constraint("Equal", 52, 54),
    Sketcher.Constraint("Equal", 54, 56),
    Sketcher.Constraint("Equal", 56, 58),
    Sketcher.Constraint("Equal", 58, 59),
    Sketcher.Constraint("Equal", 59, 60),
    Sketcher.Constraint("Equal", 60, 62),
    Sketcher.Constraint("Equal", 62, 64),
    Sketcher.Constraint("Equal", 64, 66),
    Sketcher.Constraint("Equal", 38, 68),
    Sketcher.Constraint("Equal", 66, 69),
    Sketcher.Constraint("Equal", 69, 70),
    Sketcher.Constraint("Equal", 70, 71),
    Sketcher.Constraint("Equal", 71, 72),
    Sketcher.Constraint("Equal", 72, 74),
    Sketcher.Constraint("Equal", 74, 76),
    Sketcher.Constraint("Equal", 76, 78),
    Sketcher.Constraint("Equal", 78, 80),
    Sketcher.Constraint("Equal", 80, 81),
    Sketcher.Constraint("Equal", 81, 82),
    Sketcher.Constraint("Equal", 82, 84),
    Sketcher.Constraint("Equal", 84, 86),
    Sketcher.Constraint("Equal", 86, 88),
    Sketcher.Constraint("Horizontal", 5, 3, 9, 3),
    Sketcher.Constraint("Horizontal", 11, 3, 15, 3),
    Sketcher.Constraint("Horizontal", 17, 3, 21, 3),
    Sketcher.Constraint("Horizontal", 28, 3, 29, 3),
    Sketcher.Constraint("Horizontal", 29, 3, 30, 3),
    Sketcher.Constraint("Horizontal", 30, 3, 31, 3),
    Sketcher.Constraint("Horizontal", 32, 3, 33, 3),
    Sketcher.Constraint("Horizontal", 31, 3, 34, 3),
    Sketcher.Constraint("Horizontal", 34, 3, 35, 3),
    Sketcher.Constraint("Horizontal", 35, 3, 36, 3),
    Sketcher.Constraint("Horizontal", 36, 3, 37, 3),
    Sketcher.Constraint("Horizontal", 39, 3, 40, 3),
    Sketcher.Constraint("Horizontal", 40, 3, 41, 3),
    Sketcher.Constraint("Horizontal", 41, 3, 42, 3),
    Sketcher.Constraint("Horizontal", 49, 3, 52, 3),
    Sketcher.Constraint("Horizontal", 47, 3, 56, 3),
    Sketcher.Constraint("Horizontal", 54, 3, 60, 3),
    Sketcher.Constraint("Horizontal", 38, 3, 68, 3),
    Sketcher.Constraint("Horizontal", 42, 3, 69, 3),
    Sketcher.Constraint("Horizontal", 69, 3, 70, 3),
    Sketcher.Constraint("Horizontal", 70, 3, 71, 3),
    Sketcher.Constraint("Horizontal", 71, 3, 72, 3),
    Sketcher.Constraint("Horizontal", 58, 3, 74, 3),
    Sketcher.Constraint("Horizontal", 62, 3, 76, 3),
    Sketcher.Constraint("Horizontal", 59, 3, 81, 3),
    Sketcher.Constraint("Horizontal", 78, 3, 82, 3),
    Sketcher.Constraint("Horizontal", 80, 3, 86, 3),
    Sketcher.Constraint("Horizontal", 1, 2, 6, 2),
    Sketcher.Constraint("Horizontal", 7, 2, 12, 2),
    Sketcher.Constraint("Horizontal", 13, 2, 18, 2),
    Sketcher.Constraint("Horizontal", 19, 2, 24, 2),
    Sketcher.Constraint("Vertical", 32, 3, 38, 3),
    Sketcher.Constraint("Vertical", 28, 3, 39, 3),
    Sketcher.Constraint("Vertical", 29, 3, 40, 3),
    Sketcher.Constraint("Vertical", 30, 3, 41, 3),
    Sketcher.Constraint("Vertical", 31, 3, 42, 3),
    Sketcher.Constraint("Vertical", 3, 3, 43, 3),
    Sketcher.Constraint("Vertical", 5, 3, 47, 3),
    Sketcher.Constraint("Vertical", 11, 3, 52, 3),
    Sketcher.Constraint("Vertical", 9, 3, 54, 3),
    Sketcher.Constraint("Vertical", 42, 3, 59, 3),
    Sketcher.Constraint("Vertical", 33, 3, 68, 3),
    Sketcher.Constraint("Vertical", 34, 3, 69, 3),
    Sketcher.Constraint("Vertical", 35, 3, 70, 3),
    Sketcher.Constraint("Vertical", 36, 3, 71, 3),
    Sketcher.Constraint("Vertical", 37, 3, 72, 3),
    Sketcher.Constraint("Vertical", 17, 3, 74, 3),
    Sketcher.Constraint("Vertical", 15, 3, 78, 3),
    Sketcher.Constraint("Vertical", 69, 3, 81, 3),
    Sketcher.Constraint("Vertical", 23, 3, 82, 3),
    Sketcher.Constraint("Vertical", 21, 3, 84, 3),
    Sketcher.Constraint("Equal", 1, 7),
    Sketcher.Constraint("Equal", 4, 10),
    Sketcher.Constraint("Equal", 10, 16),
    Sketcher.Constraint("Equal", 7, 19),
    Sketcher.Constraint("Equal", 16, 22),
    Sketcher.Constraint("Equal", 19, 25),
    Sketcher.Constraint("Equal", 13, 0),
    Sketcher.Constraint("Equal", 87, 2),
    Sketcher.Constraint("Equal", 24, 44),
    Sketcher.Constraint("Diameter", 28, 2.0),
    Sketcher.Constraint("Diameter", 32, 2.5),
    Sketcher.Constraint("DistanceX", 1, 1, 1, 2, 8.0),
    Sketcher.Constraint("DistanceX", 4, 1, 4, 2, 2.0),
    Sketcher.Constraint("DistanceX", 13, 1, 13, 2, 48.0),
    Sketcher.Constraint("DistanceX", 61, 1, 61, 2, 15.0),
    Sketcher.Constraint("DistanceY", 63, 2, 63, 1, 13.0),
    Sketcher.Constraint("DistanceX", 3, 3, -1, 1, 45.694067),
    Sketcher.Constraint("DistanceY", 3, 3, -1, 1, 9.010097),
    Sketcher.Constraint("DistanceX", 28, 3, -1, 1, 48.694067),
    Sketcher.Constraint("DistanceY", 28, 3, -1, 1, 7.010097),
    Sketcher.Constraint("DistanceX", 29, 3, -1, 1, 40.694067),
    Sketcher.Constraint("DistanceX", 30, 3, -1, 1, 36.694067),
    Sketcher.Constraint("DistanceX", 31, 3, -1, 1, 28.694067),
    Sketcher.Constraint("DistanceX", 32, 3, -1, 1, 20.194067),
    Sketcher.Constraint("DistanceY", 32, 3, -1, 1, 6.510097),
    Sketcher.Constraint("DistanceX", -1, 1, 33, 3, 6.805933),
    Sketcher.Constraint("DistanceX", -1, 1, 34, 3, 15.305933),
    Sketcher.Constraint("DistanceX", -1, 1, 35, 3, 23.305933),
    Sketcher.Constraint("DistanceX", -1, 1, 36, 3, 27.305933),
    Sketcher.Constraint("DistanceX", -1, 1, 37, 3, 35.305933),
    Sketcher.Constraint("DistanceY", -1, 1, 38, 3, 23.489903),
    Sketcher.Constraint("DistanceY", -1, 1, 39, 3, 28.989903),
    Sketcher.Constraint("DistanceY", -1, 1, 43, 3, 30.989903),
    Sketcher.Constraint("DistanceY", -1, 1, 59, 3, 34.989903),
    Sketcher.Constraint("DistanceX", 60, 3, -1, 1, 14.194067),
])
sketch1.setExpression("Constraints[216]", "Params.sketch1_diameter")
sketch1.setExpression("Constraints[217]", "Params.sketch1_diameter2")
sketch1.setExpression("Constraints[218]", "Params.sketch1_width")
sketch1.setExpression("Constraints[219]", "Params.sketch1_width2")
sketch1.setExpression("Constraints[220]", "Params.sketch1_width3")
pad1 = body.newObject("PartDesign::Pad", "Pad")
pad1.Profile = sketch1
pad1.setExpression("Length", "Params.pad1_length")

doc.recompute()
